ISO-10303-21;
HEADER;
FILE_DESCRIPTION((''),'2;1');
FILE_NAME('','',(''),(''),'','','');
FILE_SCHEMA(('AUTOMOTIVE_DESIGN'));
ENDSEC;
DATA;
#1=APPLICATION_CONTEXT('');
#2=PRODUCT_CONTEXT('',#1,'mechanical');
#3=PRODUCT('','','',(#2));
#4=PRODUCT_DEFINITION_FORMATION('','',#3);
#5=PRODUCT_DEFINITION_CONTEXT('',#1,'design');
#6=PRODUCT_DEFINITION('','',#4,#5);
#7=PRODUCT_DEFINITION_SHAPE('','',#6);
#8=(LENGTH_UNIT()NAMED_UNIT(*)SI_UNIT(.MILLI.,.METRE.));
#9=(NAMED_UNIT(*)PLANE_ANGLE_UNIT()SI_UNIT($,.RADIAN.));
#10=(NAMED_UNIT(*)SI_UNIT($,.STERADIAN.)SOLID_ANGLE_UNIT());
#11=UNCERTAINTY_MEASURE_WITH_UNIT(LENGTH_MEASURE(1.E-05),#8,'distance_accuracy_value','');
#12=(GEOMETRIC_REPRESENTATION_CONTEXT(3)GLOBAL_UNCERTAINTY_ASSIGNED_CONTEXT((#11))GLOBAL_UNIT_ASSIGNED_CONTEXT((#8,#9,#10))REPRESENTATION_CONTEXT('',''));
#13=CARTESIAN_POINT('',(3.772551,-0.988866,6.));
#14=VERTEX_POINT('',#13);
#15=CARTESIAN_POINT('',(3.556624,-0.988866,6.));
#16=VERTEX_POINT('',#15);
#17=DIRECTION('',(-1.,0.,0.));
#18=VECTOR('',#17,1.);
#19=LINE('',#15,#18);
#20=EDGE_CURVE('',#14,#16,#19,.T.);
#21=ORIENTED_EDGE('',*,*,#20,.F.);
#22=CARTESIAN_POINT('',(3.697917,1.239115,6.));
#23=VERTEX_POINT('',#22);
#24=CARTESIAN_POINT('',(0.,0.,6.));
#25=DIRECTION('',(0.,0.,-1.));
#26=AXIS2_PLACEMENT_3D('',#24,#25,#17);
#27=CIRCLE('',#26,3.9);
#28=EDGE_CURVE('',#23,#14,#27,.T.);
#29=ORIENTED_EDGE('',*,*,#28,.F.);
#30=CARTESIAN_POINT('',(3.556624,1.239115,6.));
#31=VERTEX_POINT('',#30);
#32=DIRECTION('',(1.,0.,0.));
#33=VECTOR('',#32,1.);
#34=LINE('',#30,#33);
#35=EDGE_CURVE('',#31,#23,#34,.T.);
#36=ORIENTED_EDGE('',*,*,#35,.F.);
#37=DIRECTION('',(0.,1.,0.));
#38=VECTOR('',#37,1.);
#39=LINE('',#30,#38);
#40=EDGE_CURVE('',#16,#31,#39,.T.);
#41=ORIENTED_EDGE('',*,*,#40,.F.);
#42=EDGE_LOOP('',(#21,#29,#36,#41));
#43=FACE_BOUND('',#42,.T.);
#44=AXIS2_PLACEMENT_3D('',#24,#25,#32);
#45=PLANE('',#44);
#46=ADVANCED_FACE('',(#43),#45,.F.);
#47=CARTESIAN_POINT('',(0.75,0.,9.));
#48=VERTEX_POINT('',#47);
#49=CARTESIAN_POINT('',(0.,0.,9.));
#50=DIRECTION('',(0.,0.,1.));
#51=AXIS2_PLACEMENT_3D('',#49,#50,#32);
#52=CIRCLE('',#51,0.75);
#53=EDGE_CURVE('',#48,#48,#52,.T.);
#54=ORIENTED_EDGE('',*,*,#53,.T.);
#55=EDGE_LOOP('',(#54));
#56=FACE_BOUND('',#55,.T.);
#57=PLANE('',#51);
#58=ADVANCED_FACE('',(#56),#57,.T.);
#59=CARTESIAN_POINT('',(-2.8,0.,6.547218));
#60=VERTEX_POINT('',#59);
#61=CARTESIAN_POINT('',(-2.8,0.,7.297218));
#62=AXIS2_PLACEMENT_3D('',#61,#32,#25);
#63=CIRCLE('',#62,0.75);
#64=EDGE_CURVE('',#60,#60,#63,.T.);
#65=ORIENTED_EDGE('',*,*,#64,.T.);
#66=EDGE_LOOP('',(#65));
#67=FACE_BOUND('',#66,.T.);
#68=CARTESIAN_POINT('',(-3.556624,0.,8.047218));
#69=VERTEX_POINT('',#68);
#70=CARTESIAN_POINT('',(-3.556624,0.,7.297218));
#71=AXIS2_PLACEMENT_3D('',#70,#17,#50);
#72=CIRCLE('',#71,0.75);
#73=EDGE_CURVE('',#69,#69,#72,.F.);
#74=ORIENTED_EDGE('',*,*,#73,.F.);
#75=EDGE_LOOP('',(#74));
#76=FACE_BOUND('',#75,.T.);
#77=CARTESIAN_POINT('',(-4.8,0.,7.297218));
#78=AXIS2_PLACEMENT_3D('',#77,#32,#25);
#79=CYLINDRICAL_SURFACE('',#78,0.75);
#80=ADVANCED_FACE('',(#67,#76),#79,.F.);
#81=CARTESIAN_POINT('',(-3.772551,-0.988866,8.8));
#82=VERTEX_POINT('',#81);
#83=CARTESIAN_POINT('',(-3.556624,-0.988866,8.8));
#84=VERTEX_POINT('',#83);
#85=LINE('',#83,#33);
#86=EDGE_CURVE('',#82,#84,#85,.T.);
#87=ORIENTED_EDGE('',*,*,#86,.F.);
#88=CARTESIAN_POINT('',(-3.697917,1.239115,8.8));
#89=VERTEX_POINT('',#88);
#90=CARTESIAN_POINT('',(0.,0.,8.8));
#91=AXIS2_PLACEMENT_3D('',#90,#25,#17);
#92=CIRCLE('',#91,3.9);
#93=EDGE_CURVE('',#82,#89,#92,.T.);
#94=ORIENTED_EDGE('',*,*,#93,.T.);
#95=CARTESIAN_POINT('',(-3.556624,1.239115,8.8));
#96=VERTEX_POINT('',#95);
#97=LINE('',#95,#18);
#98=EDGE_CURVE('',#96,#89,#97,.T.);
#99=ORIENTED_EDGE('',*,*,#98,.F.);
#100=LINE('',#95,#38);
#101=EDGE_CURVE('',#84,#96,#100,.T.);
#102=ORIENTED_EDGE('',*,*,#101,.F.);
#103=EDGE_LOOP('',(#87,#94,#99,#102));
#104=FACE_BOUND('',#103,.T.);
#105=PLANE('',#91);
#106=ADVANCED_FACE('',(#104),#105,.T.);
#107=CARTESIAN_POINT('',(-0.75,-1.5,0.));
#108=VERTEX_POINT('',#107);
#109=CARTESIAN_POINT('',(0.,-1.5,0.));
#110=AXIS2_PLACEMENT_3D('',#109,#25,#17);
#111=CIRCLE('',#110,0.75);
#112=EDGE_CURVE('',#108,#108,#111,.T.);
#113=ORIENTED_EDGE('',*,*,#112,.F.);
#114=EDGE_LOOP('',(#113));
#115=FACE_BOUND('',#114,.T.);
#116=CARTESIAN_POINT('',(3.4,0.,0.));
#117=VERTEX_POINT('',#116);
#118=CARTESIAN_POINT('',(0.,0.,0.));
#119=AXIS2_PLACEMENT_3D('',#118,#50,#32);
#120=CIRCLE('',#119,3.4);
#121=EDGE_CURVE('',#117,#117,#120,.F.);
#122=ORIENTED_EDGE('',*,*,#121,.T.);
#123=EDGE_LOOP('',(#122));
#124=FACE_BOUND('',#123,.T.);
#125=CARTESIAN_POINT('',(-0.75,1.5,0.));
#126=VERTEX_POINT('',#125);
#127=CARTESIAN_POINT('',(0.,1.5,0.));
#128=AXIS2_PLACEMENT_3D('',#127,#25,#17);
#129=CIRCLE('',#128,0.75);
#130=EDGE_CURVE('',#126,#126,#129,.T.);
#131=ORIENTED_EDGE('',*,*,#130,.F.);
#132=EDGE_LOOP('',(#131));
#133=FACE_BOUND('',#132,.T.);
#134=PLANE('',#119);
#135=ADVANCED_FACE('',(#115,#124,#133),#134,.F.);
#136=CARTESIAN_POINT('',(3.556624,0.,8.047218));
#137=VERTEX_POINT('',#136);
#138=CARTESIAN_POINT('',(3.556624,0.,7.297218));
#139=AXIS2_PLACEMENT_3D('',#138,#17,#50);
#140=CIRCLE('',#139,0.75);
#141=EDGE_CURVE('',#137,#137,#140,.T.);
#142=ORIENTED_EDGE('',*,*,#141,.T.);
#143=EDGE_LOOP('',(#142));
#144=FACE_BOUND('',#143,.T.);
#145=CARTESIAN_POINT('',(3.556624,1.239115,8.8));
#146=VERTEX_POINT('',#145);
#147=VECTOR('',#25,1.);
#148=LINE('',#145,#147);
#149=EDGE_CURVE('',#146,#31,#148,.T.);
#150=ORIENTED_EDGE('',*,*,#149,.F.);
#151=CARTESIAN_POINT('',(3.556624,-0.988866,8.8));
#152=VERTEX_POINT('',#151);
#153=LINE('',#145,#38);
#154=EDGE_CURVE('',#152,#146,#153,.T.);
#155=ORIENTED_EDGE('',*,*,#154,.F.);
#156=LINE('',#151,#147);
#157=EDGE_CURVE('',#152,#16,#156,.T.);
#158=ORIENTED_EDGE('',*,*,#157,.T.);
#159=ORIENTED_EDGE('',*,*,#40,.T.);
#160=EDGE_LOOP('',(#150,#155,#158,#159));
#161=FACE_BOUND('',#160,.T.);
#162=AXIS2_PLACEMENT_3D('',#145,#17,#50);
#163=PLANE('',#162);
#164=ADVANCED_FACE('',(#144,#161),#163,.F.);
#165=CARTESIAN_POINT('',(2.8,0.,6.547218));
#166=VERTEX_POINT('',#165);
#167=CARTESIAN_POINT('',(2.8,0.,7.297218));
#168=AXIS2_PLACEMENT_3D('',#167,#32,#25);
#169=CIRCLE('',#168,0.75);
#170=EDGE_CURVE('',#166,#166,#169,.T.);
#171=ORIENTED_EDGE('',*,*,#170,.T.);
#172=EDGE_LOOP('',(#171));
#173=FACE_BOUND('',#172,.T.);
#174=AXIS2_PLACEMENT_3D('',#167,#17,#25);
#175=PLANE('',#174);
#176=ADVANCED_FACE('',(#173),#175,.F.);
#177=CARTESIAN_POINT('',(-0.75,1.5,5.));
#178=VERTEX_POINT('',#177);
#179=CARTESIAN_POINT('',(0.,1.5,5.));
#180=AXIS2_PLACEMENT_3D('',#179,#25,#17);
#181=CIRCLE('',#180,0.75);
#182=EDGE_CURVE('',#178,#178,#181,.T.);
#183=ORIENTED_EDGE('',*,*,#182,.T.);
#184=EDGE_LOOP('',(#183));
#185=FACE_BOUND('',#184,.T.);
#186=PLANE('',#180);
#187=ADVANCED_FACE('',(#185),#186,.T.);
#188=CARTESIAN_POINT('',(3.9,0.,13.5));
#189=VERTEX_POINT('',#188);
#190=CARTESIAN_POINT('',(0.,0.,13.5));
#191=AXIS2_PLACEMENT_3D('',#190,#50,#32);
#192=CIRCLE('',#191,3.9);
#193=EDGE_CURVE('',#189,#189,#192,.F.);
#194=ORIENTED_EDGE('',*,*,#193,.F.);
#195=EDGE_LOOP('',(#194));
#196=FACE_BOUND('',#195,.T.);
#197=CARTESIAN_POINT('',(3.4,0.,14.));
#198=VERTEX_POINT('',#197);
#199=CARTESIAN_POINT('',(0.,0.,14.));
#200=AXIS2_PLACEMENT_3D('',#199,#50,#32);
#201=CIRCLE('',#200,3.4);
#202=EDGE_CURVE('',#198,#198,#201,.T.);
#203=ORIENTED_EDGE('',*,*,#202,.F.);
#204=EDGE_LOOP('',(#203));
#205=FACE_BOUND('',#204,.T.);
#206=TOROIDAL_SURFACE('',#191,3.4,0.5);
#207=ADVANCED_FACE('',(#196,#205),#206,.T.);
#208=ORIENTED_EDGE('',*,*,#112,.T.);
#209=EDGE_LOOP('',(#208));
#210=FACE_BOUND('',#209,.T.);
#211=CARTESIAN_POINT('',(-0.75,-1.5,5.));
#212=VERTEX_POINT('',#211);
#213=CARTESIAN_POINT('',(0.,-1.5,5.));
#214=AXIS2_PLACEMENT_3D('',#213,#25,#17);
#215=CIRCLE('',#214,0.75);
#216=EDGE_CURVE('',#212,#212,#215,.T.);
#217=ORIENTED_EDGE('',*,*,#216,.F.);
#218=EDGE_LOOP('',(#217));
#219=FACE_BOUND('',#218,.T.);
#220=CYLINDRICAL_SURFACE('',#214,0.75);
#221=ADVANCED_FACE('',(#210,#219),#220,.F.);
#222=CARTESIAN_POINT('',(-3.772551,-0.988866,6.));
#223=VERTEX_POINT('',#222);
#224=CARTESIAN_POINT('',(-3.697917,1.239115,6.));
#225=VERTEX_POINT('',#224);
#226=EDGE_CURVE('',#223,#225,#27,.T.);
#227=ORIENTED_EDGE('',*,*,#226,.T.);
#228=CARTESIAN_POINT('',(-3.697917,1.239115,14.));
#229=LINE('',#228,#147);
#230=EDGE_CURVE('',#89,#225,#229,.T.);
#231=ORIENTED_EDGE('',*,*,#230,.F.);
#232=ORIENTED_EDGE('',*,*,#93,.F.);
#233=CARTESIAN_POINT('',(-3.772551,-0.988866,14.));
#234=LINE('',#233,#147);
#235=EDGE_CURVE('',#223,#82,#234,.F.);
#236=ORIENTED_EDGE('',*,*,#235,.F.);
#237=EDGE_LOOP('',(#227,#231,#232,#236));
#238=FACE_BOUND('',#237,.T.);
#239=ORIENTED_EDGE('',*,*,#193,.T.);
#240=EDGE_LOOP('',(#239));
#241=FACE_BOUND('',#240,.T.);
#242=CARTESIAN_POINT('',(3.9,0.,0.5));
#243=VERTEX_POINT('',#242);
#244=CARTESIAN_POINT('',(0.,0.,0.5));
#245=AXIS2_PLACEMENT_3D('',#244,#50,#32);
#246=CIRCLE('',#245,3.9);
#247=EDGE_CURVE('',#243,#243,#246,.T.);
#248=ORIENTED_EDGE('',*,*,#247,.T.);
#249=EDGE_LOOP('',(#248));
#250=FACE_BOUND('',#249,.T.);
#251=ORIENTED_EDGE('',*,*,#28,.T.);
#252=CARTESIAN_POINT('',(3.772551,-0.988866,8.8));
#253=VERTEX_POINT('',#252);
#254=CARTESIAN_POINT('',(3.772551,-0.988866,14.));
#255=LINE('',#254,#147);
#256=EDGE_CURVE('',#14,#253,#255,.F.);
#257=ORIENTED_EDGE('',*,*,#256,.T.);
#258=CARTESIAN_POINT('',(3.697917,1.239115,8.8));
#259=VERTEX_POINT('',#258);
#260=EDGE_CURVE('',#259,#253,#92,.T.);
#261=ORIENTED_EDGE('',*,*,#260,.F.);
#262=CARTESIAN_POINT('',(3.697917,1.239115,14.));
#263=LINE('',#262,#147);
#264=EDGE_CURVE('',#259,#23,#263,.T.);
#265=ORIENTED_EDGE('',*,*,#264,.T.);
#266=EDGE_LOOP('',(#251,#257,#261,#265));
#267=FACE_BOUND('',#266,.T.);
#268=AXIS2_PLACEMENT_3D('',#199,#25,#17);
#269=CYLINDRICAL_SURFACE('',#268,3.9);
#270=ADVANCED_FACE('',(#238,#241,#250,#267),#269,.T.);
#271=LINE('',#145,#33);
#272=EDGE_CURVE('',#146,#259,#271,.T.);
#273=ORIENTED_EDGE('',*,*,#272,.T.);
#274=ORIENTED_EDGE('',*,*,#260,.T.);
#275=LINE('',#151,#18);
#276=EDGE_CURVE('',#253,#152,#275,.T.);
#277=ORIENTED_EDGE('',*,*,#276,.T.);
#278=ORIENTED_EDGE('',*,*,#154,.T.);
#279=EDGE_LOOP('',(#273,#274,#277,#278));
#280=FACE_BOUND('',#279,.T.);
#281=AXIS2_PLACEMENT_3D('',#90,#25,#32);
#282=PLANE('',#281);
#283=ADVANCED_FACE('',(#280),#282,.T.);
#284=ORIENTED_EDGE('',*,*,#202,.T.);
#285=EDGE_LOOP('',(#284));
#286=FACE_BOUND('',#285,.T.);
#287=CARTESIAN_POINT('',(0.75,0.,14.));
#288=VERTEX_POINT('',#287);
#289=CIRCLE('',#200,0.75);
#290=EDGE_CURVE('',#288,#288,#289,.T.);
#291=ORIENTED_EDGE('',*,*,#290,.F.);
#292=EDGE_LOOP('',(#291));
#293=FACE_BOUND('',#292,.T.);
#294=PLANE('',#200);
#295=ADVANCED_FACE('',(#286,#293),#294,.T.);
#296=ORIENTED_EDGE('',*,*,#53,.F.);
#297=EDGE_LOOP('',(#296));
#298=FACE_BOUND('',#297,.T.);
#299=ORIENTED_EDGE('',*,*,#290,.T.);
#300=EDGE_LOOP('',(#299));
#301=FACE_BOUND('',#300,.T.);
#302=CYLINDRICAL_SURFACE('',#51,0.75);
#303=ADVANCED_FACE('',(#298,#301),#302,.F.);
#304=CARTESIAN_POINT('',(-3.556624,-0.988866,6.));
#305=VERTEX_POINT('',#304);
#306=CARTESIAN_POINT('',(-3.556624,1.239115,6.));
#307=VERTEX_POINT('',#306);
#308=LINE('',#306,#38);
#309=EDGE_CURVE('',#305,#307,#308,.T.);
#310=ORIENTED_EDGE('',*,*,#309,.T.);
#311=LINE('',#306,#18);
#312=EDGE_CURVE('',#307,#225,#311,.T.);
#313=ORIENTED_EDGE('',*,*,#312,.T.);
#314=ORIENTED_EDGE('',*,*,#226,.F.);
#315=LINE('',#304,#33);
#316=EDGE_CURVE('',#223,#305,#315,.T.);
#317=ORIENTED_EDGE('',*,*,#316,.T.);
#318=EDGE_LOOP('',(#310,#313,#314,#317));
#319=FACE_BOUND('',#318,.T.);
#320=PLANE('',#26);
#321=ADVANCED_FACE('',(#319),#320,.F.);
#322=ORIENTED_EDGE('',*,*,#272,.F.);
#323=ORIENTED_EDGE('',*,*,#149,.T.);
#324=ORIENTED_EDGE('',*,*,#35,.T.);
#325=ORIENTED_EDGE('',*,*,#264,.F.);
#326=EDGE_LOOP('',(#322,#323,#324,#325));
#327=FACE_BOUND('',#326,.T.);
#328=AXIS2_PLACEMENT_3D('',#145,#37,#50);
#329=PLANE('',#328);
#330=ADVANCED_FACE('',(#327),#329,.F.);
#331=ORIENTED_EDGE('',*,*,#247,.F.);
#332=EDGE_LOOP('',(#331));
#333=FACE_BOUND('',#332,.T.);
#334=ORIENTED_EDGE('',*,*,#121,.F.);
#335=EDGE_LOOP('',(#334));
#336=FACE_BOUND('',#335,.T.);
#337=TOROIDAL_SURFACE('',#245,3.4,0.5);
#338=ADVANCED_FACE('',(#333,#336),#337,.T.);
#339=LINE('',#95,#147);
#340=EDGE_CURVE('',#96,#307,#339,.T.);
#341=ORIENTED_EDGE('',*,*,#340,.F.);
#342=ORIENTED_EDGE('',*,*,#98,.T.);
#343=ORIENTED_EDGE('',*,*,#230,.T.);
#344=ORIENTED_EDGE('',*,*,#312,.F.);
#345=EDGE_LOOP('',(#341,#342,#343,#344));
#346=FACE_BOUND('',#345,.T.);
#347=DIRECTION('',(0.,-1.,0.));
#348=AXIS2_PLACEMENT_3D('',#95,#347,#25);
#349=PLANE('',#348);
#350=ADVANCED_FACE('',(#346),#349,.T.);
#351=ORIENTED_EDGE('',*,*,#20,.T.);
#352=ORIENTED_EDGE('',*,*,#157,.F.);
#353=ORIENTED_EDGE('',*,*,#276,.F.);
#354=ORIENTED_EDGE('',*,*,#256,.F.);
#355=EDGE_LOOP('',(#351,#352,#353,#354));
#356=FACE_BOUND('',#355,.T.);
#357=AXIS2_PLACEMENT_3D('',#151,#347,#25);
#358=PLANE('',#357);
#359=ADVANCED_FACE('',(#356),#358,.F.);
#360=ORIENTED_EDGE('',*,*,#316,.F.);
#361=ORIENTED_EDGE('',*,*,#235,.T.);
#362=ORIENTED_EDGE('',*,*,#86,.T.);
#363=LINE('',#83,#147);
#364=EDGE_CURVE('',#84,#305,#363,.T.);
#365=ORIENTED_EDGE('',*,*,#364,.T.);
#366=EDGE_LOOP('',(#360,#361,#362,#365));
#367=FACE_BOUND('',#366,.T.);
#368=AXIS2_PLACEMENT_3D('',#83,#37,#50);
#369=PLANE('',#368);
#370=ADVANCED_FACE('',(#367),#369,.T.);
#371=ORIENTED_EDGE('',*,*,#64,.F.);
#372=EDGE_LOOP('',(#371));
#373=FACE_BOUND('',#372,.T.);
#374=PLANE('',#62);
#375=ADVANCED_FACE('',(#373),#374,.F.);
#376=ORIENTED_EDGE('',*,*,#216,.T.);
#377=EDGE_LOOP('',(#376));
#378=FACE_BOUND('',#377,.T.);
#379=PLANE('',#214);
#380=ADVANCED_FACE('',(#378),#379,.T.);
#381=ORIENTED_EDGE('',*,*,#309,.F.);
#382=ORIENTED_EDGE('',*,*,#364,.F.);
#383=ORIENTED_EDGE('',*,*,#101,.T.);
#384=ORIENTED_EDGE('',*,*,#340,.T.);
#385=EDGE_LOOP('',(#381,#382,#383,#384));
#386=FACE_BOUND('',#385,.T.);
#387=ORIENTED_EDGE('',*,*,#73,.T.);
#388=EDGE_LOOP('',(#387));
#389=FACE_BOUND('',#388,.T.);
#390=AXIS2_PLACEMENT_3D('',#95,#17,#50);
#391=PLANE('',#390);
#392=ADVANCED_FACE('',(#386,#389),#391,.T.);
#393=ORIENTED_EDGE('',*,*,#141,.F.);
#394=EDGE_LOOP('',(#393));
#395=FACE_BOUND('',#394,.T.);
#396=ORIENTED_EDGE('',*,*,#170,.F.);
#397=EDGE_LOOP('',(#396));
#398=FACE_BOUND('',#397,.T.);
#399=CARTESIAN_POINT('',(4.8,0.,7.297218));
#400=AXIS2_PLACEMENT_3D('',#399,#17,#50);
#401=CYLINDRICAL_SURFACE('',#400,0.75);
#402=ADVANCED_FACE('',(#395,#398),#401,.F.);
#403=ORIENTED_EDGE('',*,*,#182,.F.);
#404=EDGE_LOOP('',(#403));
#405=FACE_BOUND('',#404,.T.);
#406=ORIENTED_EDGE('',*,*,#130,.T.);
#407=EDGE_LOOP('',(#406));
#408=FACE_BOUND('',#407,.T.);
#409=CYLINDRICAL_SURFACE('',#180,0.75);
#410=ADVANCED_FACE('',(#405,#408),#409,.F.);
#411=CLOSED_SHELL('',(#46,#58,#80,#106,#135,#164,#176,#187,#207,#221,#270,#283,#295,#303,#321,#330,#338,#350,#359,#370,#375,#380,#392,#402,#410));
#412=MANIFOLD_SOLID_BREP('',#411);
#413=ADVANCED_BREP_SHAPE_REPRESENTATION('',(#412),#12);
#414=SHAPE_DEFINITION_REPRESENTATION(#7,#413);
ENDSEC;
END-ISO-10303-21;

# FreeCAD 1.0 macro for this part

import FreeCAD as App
import Part
import Sketcher
from FreeCAD import Vector


def edges_at(feature, points):
    """Names of the edges that pass closest to the given points."""
    edges = feature.Shape.Edges
    near = lambda p: min(range(len(edges)), key=lambda i: edges[i].distToShape(Part.Vertex(*p))[0])
    return sorted({f"Edge{near(p) + 1}" for p in points})

doc = App.newDocument("Part")
body = doc.addObject("PartDesign::Body", "Body")

# Sketch on XY plane
sketch1 = body.newObject("Sketcher::SketchObject", "Sketch")
sketch1.AttachmentSupport = (doc.getObject("XY_Plane"), [""])
sketch1.MapMode = "FlatFace"
sketch1.addGeometry(Part.Circle(Vector(0, 0, 0), Vector(0, 0, 1), 3.9), False)
sketch1.addConstraint([
    Sketcher.Constraint("Coincident", 0, 3, -1, 1),
    Sketcher.Constraint("Diameter", 0, 7.8),
])
pad1 = body.newObject("PartDesign::Pad", "Pad")
pad1.Profile = sketch1
pad1.Length = 14
doc.recompute()

fillet = body.newObject("PartDesign::Fillet", "Fillet")
fillet.Base = (pad1, edges_at(pad1, [(-3.9, 0, 0), (-3.9, 0, 14)]))
fillet.Radius = 0.5

# Sketch on XY plane
sketch2 = body.newObject("Sketcher::SketchObject", "Sketch001")
sketch2.AttachmentSupport = (doc.getObject("XY_Plane"), [""])
sketch2.MapMode = "FlatFace"
sketch2.AttachmentOffset = App.Placement(Vector(0, 0, 14), App.Rotation())
sketch2.addGeometry(Part.Circle(Vector(0, 0, 0), Vector(0, 0, 1), 0.8), False)
sketch2.addConstraint([
    Sketcher.Constraint("Coincident", 0, 3, -1, 1),
    Sketcher.Constraint("Diameter", 0, 1.5),
])
pocket1 = body.newObject("PartDesign::Pocket", "Pocket")
pocket1.Profile = sketch2
pocket1.Length = 5

# Sketch on XY plane
sketch3 = body.newObject("Sketcher::SketchObject", "Sketch002")
sketch3.AttachmentSupport = (doc.getObject("XY_Plane"), [""])
sketch3.MapMode = "FlatFace"
sketch3.addGeometry([
    Part.Circle(Vector(0, 1.5, 0), Vector(0, 0, 1), 0.8),
    Part.Circle(Vector(0, -1.5, 0), Vector(0, 0, 1), 0.8),
], False)
sketch3.addConstraint([
    Sketcher.Constraint("Equal", 0, 1),
    Sketcher.Constraint("Symmetric", 0, 3, 1, 3, -1, 1),
    Sketcher.Constraint("PointOnObject", 0, 3, -2),
    Sketcher.Constraint("Diameter", 0, 1.5),
    Sketcher.Constraint("DistanceY", 1, 3, 0, 3, 3.0),
])
pocket2 = body.newObject("PartDesign::Pocket", "Pocket001")
pocket2.Profile = sketch3
pocket2.Length = 5
pocket2.Reversed = True

# Sketch on YZ plane
sketch4 = body.newObject("Sketcher::SketchObject", "Sketch003")
sketch4.AttachmentSupport = (doc.getObject("YZ_Plane"), [""])
sketch4.MapMode = "FlatFace"
sketch4.AttachmentOffset = App.Placement(Vector(0, 0, -3.8), App.Rotation())
sketch4.addGeometry(Part.Circle(Vector(0, 7.3, 0), Vector(0, 0, 1), 0.8), False)
sketch4.addConstraint([
    Sketcher.Constraint("PointOnObject", 0, 3, -2),
    Sketcher.Constraint("Diameter", 0, 1.5),
    Sketcher.Constraint("DistanceY", -1, 1, 0, 3, 7.297218),
])
pocket3 = body.newObject("PartDesign::Pocket", "Pocket002")
pocket3.Profile = sketch4
pocket3.Length = 2
pocket3.Midplane = True

# Sketch on XY plane
sketch5 = body.newObject("Sketcher::SketchObject", "Sketch004")
sketch5.AttachmentSupport = (doc.getObject("XY_Plane"), [""])
sketch5.MapMode = "FlatFace"
sketch5.AttachmentOffset = App.Placement(Vector(0, 0, 6), App.Rotation())
sketch5.addGeometry([
    Part.LineSegment(Vector(-3.99, 1.24, 0), Vector(-3.99, -0.99, 0)),
    Part.LineSegment(Vector(-3.99, -0.99, 0), Vector(-3.56, -0.99, 0)),
    Part.LineSegment(Vector(-3.56, -0.99, 0), Vector(-3.56, 1.24, 0)),
    Part.LineSegment(Vector(-3.56, 1.24, 0), Vector(-3.99, 1.24, 0)),
], False)
sketch5.addConstraint([
    Sketcher.Constraint("Coincident", 0, 2, 1, 1),
    Sketcher.Constraint("Coincident", 1, 2, 2, 1),
    Sketcher.Constraint("Coincident", 2, 2, 3, 1),
    Sketcher.Constraint("Coincident", 3, 2, 0, 1),
    Sketcher.Constraint("Vertical", 0),
    Sketcher.Constraint("Horizontal", 1),
    Sketcher.Constraint("Vertical", 2),
    Sketcher.Constraint("Horizontal", 3),
    Sketcher.Constraint("DistanceY", 0, 2, 0, 1, 2.227981),
    Sketcher.Constraint("DistanceX", 1, 1, 1, 2, 0.434987),
    Sketcher.Constraint("DistanceX", 0, 2, -1, 1, 3.991611),
    Sketcher.Constraint("DistanceY", 0, 2, -1, 1, 0.988866),
])
pocket4 = body.newObject("PartDesign::Pocket", "Pocket003")
pocket4.Profile = sketch5
pocket4.Length = 2.8
pocket4.Reversed = True
doc.recompute()

mirrored = body.newObject("PartDesign::Mirrored", "Mirrored")
mirrored.Originals = [pocket3, pocket4]
mirrored.MirrorPlane = (doc.getObject("YZ_Plane"), [""])
body.Tip = mirrored

doc.recompute()
